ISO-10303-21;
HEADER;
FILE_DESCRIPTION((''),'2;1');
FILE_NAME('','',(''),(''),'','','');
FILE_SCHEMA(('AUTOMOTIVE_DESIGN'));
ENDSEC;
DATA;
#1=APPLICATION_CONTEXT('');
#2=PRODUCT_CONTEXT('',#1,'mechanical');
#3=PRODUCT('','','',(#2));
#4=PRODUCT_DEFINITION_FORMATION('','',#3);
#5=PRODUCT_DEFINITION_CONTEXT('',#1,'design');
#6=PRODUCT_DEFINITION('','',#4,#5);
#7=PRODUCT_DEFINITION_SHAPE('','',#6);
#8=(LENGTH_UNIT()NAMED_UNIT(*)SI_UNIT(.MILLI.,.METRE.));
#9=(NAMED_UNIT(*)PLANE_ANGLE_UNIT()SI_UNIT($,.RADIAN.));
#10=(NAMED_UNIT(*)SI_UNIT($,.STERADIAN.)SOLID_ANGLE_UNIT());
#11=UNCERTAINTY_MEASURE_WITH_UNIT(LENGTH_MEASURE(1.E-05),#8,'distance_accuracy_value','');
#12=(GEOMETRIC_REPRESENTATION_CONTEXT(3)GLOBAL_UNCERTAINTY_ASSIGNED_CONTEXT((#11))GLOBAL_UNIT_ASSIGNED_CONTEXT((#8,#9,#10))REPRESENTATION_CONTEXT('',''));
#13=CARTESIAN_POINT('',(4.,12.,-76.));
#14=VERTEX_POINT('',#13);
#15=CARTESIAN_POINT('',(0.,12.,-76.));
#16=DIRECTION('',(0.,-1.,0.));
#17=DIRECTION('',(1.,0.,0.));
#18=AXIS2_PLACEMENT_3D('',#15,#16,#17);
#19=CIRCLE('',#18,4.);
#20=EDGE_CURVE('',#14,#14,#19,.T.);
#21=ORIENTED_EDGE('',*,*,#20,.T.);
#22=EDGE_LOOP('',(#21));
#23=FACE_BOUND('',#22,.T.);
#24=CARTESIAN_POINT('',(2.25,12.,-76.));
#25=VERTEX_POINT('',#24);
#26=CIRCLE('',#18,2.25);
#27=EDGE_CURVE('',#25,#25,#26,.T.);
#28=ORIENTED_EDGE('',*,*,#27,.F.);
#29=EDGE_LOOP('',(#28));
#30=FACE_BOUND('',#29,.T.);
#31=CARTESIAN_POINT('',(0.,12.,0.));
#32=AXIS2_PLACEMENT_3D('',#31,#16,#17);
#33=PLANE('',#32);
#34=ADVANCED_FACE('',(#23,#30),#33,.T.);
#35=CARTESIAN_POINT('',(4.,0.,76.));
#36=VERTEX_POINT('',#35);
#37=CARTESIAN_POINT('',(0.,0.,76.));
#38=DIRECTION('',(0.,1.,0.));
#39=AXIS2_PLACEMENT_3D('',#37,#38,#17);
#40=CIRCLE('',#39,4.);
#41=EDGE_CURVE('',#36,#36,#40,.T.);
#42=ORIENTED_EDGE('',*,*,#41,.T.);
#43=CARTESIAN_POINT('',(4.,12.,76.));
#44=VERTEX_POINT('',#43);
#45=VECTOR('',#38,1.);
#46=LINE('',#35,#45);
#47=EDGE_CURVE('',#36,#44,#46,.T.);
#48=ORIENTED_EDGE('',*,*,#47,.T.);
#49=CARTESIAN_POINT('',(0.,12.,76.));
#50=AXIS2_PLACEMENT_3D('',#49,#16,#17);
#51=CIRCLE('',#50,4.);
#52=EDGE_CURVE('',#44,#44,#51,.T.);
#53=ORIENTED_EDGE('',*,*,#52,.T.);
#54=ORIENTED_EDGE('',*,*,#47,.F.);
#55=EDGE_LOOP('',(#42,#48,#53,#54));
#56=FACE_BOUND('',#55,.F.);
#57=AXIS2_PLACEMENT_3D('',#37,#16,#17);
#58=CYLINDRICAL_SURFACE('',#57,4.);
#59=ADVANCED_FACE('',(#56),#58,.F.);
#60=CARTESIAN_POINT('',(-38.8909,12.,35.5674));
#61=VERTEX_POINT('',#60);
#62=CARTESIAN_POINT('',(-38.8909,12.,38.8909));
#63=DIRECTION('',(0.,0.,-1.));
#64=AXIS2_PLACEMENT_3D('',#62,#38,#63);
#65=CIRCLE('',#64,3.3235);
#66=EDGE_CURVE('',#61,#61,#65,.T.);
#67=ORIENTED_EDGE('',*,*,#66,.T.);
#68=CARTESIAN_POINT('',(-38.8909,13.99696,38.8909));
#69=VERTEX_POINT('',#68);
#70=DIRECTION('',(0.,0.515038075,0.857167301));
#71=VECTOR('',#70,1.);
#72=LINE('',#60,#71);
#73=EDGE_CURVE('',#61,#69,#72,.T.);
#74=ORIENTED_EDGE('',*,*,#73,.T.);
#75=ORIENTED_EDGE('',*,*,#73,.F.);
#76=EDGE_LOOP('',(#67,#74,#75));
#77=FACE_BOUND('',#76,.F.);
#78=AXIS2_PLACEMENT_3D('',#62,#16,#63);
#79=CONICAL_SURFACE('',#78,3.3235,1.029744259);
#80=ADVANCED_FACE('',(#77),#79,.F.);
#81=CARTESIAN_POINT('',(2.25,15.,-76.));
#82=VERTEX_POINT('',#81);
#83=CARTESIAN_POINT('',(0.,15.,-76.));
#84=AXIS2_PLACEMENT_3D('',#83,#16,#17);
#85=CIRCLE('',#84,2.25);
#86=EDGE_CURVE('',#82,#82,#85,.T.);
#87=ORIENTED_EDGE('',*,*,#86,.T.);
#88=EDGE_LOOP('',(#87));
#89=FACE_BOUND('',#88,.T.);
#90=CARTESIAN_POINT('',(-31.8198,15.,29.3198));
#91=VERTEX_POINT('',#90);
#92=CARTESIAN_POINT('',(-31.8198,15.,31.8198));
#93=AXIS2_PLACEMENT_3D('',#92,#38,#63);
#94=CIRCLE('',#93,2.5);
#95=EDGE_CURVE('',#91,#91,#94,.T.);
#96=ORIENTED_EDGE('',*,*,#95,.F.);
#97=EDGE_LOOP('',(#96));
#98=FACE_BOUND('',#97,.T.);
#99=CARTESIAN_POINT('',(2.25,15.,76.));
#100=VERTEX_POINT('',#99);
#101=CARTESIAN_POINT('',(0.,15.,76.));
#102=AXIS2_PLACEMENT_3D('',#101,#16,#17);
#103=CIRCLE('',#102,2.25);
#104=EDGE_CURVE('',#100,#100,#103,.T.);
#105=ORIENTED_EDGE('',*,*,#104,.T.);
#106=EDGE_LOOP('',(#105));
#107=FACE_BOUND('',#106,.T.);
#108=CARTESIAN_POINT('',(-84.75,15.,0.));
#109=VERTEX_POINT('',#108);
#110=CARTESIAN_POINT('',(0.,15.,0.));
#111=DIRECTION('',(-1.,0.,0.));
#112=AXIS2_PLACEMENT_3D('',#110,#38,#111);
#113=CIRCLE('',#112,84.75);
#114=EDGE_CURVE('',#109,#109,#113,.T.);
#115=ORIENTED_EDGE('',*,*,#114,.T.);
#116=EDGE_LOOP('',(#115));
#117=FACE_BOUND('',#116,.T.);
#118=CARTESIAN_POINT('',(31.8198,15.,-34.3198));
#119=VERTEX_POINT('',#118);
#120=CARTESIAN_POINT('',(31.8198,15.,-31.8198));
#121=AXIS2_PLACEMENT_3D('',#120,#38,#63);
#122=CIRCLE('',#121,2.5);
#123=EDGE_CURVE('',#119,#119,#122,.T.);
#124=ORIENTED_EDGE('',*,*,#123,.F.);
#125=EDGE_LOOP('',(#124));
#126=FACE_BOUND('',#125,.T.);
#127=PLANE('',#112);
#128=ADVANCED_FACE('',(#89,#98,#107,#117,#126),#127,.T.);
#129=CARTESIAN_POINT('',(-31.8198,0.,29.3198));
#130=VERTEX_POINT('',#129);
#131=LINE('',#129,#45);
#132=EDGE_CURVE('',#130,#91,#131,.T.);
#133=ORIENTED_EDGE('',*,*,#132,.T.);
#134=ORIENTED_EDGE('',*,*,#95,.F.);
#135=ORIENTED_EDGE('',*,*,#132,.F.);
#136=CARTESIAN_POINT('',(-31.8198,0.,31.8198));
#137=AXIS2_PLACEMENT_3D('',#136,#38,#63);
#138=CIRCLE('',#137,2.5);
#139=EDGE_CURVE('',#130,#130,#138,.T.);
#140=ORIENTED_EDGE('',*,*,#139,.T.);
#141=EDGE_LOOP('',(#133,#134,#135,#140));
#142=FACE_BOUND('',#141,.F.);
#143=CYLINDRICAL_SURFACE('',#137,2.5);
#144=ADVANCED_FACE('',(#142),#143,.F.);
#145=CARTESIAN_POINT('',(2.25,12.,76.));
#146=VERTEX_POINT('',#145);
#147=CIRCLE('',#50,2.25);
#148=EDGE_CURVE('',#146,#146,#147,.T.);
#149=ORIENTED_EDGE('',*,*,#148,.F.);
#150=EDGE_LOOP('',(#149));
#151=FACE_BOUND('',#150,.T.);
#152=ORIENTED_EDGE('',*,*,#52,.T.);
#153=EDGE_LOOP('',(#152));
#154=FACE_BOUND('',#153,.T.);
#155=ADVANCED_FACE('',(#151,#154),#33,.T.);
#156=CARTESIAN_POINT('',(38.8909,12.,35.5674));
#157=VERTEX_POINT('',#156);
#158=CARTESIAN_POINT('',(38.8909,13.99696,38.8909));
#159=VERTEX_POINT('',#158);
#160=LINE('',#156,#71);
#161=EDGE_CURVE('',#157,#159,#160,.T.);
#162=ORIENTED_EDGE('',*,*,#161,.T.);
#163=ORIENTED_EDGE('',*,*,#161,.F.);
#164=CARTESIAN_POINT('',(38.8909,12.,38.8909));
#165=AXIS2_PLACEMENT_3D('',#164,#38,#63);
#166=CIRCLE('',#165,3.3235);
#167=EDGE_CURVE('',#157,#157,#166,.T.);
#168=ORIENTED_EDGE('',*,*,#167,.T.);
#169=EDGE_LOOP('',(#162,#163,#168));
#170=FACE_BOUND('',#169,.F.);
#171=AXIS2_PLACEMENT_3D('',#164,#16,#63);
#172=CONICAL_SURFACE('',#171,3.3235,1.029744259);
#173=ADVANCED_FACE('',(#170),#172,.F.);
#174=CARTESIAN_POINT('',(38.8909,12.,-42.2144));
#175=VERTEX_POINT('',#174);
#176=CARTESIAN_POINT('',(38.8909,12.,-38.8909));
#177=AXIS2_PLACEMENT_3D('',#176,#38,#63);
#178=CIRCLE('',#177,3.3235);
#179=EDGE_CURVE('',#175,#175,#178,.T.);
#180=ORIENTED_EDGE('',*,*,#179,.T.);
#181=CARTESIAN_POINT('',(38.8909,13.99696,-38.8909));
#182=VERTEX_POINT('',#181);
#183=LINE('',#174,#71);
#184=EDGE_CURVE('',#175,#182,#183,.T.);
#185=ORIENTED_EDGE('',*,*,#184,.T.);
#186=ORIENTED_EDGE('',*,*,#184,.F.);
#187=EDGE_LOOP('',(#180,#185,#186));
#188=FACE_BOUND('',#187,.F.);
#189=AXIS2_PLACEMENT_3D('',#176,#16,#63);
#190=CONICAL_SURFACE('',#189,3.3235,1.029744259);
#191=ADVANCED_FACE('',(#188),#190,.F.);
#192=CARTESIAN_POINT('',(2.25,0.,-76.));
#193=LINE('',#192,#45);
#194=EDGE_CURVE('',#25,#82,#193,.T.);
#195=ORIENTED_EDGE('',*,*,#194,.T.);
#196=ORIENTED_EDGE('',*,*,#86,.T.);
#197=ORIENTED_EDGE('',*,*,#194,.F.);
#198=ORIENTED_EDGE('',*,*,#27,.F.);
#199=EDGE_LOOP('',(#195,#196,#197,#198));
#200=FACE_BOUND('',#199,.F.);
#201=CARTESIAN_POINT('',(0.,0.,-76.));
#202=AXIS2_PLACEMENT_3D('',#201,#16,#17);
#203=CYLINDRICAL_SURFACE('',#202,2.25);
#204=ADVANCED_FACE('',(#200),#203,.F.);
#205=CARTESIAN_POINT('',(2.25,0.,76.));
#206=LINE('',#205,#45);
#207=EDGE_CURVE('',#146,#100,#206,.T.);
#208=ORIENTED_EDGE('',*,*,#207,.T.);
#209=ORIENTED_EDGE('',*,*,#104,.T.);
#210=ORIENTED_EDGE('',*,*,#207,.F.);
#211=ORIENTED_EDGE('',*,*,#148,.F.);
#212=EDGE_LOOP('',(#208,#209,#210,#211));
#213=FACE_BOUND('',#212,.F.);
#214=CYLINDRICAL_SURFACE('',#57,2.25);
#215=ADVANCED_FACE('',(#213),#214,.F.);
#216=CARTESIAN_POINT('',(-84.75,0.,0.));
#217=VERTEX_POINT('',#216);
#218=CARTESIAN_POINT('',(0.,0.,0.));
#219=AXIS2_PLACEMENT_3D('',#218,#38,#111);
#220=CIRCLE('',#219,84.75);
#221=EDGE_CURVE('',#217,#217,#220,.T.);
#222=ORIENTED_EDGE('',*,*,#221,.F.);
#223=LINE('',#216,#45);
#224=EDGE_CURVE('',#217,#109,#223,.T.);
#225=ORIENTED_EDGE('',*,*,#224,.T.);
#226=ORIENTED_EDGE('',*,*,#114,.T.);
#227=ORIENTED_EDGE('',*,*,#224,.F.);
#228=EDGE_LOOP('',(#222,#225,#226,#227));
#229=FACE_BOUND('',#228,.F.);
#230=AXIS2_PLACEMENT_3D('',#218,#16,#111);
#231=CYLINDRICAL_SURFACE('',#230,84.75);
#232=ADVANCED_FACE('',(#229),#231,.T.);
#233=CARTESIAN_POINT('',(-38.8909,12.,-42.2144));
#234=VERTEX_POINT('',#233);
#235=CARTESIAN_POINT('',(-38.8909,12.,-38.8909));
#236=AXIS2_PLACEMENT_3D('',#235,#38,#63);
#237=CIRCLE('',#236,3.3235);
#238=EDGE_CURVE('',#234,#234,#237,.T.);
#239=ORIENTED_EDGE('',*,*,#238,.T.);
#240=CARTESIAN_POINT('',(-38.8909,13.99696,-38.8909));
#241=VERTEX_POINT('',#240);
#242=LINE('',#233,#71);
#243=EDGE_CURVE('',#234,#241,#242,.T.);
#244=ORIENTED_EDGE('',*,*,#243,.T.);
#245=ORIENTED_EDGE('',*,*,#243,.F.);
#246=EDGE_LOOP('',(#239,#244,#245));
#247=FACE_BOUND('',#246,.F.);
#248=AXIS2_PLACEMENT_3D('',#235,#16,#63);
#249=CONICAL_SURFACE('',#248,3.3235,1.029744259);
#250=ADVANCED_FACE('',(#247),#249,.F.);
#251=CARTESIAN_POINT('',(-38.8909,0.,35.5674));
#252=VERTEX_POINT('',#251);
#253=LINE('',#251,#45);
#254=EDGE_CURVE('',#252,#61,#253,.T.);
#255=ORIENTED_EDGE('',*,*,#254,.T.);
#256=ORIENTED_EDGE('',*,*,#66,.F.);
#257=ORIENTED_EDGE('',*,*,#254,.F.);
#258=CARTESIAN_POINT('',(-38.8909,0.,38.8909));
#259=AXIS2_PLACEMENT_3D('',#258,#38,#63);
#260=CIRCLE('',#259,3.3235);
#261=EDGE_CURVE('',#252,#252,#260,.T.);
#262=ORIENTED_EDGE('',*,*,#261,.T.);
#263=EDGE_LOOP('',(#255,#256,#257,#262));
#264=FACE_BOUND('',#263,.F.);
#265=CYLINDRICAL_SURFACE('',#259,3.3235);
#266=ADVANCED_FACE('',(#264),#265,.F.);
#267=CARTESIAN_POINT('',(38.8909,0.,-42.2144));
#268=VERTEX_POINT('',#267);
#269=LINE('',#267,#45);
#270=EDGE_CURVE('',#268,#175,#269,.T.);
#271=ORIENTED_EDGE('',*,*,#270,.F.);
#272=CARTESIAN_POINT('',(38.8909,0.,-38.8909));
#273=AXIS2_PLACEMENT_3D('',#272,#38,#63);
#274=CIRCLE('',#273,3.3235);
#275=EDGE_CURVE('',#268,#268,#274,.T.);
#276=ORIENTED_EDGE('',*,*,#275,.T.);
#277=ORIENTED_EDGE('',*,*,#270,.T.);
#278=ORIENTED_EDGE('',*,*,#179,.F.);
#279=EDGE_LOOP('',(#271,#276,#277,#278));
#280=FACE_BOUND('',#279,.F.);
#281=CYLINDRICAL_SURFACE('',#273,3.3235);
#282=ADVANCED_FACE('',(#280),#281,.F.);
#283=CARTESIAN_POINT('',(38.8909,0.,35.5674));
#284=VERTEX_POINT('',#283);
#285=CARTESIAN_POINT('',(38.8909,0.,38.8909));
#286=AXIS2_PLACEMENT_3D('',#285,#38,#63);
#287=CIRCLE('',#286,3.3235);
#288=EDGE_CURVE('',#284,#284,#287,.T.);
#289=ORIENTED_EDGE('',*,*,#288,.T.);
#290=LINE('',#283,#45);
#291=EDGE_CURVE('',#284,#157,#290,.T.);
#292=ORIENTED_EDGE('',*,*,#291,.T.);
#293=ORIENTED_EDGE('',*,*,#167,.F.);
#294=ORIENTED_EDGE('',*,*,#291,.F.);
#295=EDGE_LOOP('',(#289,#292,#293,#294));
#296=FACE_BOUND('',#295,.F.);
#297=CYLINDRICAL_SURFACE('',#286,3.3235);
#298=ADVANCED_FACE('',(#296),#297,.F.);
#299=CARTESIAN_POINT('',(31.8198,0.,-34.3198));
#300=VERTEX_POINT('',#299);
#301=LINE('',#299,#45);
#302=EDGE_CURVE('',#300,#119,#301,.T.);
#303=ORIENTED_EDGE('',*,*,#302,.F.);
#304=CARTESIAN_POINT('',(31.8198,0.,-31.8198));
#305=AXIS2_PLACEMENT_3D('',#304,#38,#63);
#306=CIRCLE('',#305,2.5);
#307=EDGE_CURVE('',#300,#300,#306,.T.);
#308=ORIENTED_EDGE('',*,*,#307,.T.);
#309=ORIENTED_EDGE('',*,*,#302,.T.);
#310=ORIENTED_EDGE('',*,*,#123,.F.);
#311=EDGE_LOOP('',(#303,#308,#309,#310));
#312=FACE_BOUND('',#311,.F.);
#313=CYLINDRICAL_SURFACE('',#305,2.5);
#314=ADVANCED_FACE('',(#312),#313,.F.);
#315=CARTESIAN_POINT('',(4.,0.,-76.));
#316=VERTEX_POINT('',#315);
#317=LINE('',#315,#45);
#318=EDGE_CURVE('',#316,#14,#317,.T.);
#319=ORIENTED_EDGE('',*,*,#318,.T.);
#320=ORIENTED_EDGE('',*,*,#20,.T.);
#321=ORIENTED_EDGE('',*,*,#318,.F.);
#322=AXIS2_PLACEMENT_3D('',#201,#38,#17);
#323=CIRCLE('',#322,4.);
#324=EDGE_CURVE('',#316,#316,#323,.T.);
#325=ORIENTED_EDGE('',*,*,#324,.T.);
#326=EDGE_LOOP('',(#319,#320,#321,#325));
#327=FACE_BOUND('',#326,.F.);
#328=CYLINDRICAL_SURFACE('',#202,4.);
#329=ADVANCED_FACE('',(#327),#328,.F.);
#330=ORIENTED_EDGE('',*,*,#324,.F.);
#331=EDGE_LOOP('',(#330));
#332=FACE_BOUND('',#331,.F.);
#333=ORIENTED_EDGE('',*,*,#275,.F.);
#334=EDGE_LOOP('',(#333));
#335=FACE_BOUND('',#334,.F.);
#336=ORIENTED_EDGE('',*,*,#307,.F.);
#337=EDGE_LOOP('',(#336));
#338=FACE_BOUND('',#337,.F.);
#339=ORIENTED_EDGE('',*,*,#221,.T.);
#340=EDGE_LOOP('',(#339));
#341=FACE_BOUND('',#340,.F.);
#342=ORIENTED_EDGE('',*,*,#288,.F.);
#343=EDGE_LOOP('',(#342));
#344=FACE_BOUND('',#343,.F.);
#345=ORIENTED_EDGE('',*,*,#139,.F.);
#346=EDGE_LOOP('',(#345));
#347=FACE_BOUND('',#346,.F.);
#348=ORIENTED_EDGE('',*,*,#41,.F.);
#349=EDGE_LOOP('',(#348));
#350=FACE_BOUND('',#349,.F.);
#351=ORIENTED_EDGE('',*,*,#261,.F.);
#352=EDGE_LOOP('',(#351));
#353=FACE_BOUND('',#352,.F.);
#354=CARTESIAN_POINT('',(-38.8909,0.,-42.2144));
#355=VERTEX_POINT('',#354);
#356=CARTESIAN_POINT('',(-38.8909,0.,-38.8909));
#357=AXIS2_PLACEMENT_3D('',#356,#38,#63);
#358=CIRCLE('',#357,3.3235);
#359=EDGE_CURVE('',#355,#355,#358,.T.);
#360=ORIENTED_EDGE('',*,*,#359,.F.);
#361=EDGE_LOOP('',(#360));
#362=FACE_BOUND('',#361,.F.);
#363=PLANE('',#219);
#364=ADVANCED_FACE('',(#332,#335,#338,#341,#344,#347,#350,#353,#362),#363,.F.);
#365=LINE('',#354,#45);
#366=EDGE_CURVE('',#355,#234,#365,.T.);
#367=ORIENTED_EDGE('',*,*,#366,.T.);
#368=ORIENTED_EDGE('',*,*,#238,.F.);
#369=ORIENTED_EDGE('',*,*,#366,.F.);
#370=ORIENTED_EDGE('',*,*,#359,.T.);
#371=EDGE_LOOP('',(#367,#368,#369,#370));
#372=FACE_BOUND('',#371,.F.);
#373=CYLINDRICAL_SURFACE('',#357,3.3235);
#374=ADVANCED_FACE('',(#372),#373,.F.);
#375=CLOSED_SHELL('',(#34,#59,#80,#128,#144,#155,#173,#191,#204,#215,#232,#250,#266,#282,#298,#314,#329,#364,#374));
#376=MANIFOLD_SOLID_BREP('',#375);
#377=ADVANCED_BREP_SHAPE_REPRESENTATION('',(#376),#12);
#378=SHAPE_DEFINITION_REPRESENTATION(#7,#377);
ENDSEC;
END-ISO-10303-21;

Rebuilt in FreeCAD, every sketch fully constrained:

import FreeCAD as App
import Part
import Sketcher

V = App.Vector
Q = App.Units.Quantity

doc = App.newDocument("Part")
body = doc.addObject("PartDesign::Body", "Body")

sketch1 = body.newObject("Sketcher::SketchObject", "Sketch")
sketch1.AttachmentSupport = (doc.getObject("XZ_Plane"), [""])
sketch1.MapMode = "FlatFace"
sketch1.addGeometry(Part.Circle(V(0, 0, 0), V(0, 0, 1), 85), False)
sketch1.addConstraint(Sketcher.Constraint("Coincident", 0, 3, -1, 1))
sketch1.addConstraint(Sketcher.Constraint("Diameter", 0, Q("169.5 mm")))
pad1 = body.newObject("PartDesign::Pad", "Pad")
pad1.Profile = sketch1
pad1.Length = 15
pad1.Reversed = True

sketch2 = body.newObject("Sketcher::SketchObject", "Sketch001")
sketch2.AttachmentSupport = (doc.getObject("XZ_Plane"), [""])
sketch2.MapMode = "FlatFace"
sketch2.addGeometry(Part.Circle(V(0, 76, 0), V(0, 0, 1), 2.2), False)
sketch2.addGeometry(Part.Circle(V(0, -76, 0), V(0, 0, 1), 2.2), False)
sketch2.addConstraint(Sketcher.Constraint("Equal", 0, 1))
sketch2.addConstraint(Sketcher.Constraint("Symmetric", 0, 3, 1, 3, -1, 1))
sketch2.addConstraint(Sketcher.Constraint("PointOnObject", 0, 3, -2))
sketch2.addConstraint(Sketcher.Constraint("Diameter", 0, Q("4.5 mm")))
sketch2.addConstraint(Sketcher.Constraint("DistanceY", 1, 3, 0, 3, Q("152 mm")))
pocket1 = body.newObject("PartDesign::Pocket", "Pocket")
pocket1.Profile = sketch2
pocket1.Type = "ThroughAll"

sketch3 = body.newObject("Sketcher::SketchObject", "Sketch002")
sketch3.AttachmentSupport = (doc.getObject("XZ_Plane"), [""])
sketch3.MapMode = "FlatFace"
sketch3.addGeometry(Part.Circle(V(0, 76, 0), V(0, 0, 1), 4), False)
sketch3.addGeometry(Part.Circle(V(0, -76, 0), V(0, 0, 1), 4), False)
sketch3.addConstraint(Sketcher.Constraint("Equal", 0, 1))
sketch3.addConstraint(Sketcher.Constraint("Symmetric", 0, 3, 1, 3, -1, 1))
sketch3.addConstraint(Sketcher.Constraint("PointOnObject", 0, 3, -2))
sketch3.addConstraint(Sketcher.Constraint("Diameter", 0, Q("8 mm")))
sketch3.addConstraint(Sketcher.Constraint("DistanceY", 1, 3, 0, 3, Q("152 mm")))
pocket2 = body.newObject("PartDesign::Pocket", "Pocket001")
pocket2.Profile = sketch3
pocket2.Length = 12

sketch4 = body.newObject("Sketcher::SketchObject", "Sketch003")
sketch4.AttachmentSupport = (doc.getObject("XZ_Plane"), [""])
sketch4.MapMode = "FlatFace"
sketch4.addGeometry(Part.Circle(V(38.9, -38.9, 0), V(0, 0, 1), 3.3), False)
sketch4.addGeometry(Part.Circle(V(38.9, 38.9, 0), V(0, 0, 1), 3.3), False)
sketch4.addGeometry(Part.Circle(V(-38.9, 38.9, 0), V(0, 0, 1), 3.3), False)
sketch4.addGeometry(Part.Circle(V(-38.9, -38.9, 0), V(0, 0, 1), 3.3), False)
sketch4.addConstraint(Sketcher.Constraint("Equal", 0, 1))
sketch4.addConstraint(Sketcher.Constraint("Equal", 1, 2))
sketch4.addConstraint(Sketcher.Constraint("Equal", 2, 3))
sketch4.addConstraint(Sketcher.Constraint("Symmetric", 0, 3, 2, 3, -1, 1))
sketch4.addConstraint(Sketcher.Constraint("Symmetric", 1, 3, 3, 3, -1, 1))
sketch4.addConstraint(Sketcher.Constraint("Symmetric", 1, 3, 2, 3, -2))
sketch4.addConstraint(Sketcher.Constraint("Diameter", 0, Q("6.647 mm")))
sketch4.addConstraint(Sketcher.Constraint("DistanceX", -1, 1, 0, 3, Q("38.891 mm")))
sketch4.addConstraint(Sketcher.Constraint("DistanceY", 0, 3, -1, 1, Q("38.891 mm")))
doc.recompute()
hole = body.newObject("PartDesign::Hole", "Hole")
hole.Profile = sketch4
hole.ThreadType = "None"
hole.Diameter = 6.647
hole.DepthType = "Dimension"
hole.Depth = 12
hole.DrillPoint = "Angled"
hole.DrillPointAngle = 118

sketch5 = body.newObject("Sketcher::SketchObject", "Sketch004")
sketch5.AttachmentSupport = (doc.getObject("XZ_Plane"), [""])
sketch5.MapMode = "FlatFace"
sketch5.addGeometry(Part.Circle(V(-31.8, 31.8, 0), V(0, 0, 1), 2.5), False)
sketch5.addGeometry(Part.Circle(V(31.8, -31.8, 0), V(0, 0, 1), 2.5), False)
sketch5.addConstraint(Sketcher.Constraint("Equal", 0, 1))
sketch5.addConstraint(Sketcher.Constraint("Symmetric", 0, 3, 1, 3, -1, 1))
sketch5.addConstraint(Sketcher.Constraint("Diameter", 0, Q("5 mm")))
sketch5.addConstraint(Sketcher.Constraint("DistanceX", 0, 3, -1, 1, Q("31.8198 mm")))
sketch5.addConstraint(Sketcher.Constraint("DistanceY", -1, 1, 0, 3, Q("31.8198 mm")))
doc.recompute()
hole2 = body.newObject("PartDesign::Hole", "Hole001")
hole2.Profile = sketch5
hole2.ThreadType = "None"
hole2.Diameter = 5
hole2.DepthType = "ThroughAll"

doc.recompute()
